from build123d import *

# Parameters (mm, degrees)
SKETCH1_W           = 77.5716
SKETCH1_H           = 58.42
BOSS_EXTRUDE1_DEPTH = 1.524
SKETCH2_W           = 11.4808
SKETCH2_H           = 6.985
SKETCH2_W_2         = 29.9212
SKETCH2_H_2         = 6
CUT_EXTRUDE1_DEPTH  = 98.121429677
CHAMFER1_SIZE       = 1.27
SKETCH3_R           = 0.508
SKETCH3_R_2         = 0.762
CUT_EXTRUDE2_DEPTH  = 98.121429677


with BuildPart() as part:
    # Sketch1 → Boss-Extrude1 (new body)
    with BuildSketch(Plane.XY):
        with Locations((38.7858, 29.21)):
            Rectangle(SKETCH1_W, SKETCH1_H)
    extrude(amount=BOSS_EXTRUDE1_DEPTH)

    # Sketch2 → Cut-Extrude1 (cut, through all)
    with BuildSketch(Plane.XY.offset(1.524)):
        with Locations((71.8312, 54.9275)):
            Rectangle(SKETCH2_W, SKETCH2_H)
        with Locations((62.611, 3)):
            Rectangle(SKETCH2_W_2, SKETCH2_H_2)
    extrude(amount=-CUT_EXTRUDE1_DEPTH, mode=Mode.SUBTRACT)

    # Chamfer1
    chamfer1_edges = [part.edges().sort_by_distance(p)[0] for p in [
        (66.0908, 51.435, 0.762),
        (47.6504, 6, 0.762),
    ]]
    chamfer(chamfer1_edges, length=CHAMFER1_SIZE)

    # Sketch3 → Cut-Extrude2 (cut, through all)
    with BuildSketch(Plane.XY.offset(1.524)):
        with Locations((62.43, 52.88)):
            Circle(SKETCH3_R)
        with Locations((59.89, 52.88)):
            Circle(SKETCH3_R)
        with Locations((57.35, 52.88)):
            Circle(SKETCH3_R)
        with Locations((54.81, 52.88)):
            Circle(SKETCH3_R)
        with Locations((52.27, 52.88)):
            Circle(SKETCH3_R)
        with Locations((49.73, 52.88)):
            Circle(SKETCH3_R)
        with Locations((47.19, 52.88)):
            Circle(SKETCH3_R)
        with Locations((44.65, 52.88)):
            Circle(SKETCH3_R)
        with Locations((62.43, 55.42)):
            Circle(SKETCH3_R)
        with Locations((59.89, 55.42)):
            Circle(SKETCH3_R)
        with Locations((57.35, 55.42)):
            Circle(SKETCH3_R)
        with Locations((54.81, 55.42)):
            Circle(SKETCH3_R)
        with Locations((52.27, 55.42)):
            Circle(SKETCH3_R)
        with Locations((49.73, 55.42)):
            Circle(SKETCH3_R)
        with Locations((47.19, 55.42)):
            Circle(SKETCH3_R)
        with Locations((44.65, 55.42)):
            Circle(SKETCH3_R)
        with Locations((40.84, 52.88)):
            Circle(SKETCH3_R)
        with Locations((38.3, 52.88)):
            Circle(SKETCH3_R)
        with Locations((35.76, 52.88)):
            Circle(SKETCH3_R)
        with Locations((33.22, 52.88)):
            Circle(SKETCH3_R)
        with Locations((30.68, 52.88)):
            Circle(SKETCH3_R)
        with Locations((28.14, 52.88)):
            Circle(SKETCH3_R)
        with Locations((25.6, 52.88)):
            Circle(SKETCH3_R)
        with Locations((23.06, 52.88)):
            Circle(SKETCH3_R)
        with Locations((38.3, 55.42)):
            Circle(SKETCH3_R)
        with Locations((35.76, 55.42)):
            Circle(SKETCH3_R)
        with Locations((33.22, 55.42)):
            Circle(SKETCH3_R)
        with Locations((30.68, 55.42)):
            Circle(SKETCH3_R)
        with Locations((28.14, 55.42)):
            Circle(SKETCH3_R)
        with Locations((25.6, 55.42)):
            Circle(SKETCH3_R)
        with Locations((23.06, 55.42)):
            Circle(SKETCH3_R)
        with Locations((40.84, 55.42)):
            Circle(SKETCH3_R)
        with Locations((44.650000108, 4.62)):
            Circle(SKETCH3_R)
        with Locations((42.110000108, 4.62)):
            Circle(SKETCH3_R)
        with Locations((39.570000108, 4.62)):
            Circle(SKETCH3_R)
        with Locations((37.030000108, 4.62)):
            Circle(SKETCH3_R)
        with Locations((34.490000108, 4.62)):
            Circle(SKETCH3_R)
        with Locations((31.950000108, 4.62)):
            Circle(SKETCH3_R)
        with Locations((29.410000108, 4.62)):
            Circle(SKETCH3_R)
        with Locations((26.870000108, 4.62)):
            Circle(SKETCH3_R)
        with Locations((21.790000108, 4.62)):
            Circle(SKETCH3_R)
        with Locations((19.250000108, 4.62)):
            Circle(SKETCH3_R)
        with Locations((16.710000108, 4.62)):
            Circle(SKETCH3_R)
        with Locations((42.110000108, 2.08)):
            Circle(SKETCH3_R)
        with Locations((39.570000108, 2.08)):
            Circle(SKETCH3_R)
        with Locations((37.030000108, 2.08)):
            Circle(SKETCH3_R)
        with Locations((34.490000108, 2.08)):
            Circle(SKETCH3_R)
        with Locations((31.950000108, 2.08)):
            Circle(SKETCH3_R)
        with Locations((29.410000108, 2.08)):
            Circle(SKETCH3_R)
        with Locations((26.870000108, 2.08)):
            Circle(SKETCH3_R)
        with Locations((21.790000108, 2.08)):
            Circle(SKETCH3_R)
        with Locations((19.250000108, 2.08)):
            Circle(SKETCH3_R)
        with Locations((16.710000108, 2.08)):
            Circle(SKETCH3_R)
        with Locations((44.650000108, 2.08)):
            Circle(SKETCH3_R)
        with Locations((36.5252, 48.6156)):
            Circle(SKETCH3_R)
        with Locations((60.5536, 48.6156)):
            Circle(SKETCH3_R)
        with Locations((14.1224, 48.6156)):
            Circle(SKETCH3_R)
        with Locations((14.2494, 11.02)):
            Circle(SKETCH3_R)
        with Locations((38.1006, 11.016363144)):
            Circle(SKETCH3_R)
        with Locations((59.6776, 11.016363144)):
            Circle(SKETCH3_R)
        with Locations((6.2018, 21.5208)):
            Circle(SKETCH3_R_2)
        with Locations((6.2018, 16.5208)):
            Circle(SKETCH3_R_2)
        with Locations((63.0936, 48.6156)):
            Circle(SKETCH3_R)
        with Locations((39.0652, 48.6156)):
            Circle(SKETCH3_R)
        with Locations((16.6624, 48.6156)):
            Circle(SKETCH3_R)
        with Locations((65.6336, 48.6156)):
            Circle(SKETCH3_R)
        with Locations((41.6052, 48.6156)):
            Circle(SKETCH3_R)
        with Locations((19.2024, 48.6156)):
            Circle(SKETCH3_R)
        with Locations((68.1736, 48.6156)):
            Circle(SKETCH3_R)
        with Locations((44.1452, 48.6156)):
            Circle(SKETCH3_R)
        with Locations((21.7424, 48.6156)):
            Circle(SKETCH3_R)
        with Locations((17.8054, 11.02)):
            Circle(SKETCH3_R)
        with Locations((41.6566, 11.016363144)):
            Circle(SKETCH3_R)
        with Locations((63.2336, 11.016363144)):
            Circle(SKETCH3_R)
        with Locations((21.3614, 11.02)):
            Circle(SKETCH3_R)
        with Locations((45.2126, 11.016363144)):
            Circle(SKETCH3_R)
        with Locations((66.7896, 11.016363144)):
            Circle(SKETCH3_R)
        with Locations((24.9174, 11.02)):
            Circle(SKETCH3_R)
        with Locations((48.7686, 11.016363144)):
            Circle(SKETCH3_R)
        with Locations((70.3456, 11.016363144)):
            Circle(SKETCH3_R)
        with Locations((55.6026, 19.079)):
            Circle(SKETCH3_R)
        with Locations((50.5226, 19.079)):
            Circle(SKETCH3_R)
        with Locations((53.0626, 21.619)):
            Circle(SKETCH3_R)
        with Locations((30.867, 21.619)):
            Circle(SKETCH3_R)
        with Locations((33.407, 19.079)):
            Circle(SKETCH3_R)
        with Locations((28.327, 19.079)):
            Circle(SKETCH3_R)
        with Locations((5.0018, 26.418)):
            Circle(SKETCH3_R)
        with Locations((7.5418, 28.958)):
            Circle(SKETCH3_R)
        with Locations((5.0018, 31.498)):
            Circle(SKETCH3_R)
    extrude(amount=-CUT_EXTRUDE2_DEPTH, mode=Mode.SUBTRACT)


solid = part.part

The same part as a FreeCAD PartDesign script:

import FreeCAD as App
import Part
import Sketcher
Q = App.Units.Quantity


def edges_at(feature, points):
    """Names of the edges that pass closest to the given points."""
    edges = feature.Shape.Edges
    near = lambda p: min(range(len(edges)), key=lambda i: edges[i].distToShape(Part.Vertex(*p))[0])
    return sorted({f"Edge{near(p) + 1}" for p in points})

doc = App.newDocument("Part")
body = doc.addObject("PartDesign::Body", "Body")

sketch1 = doc.addObject("Sketcher::SketchObject", "Sketch")
body.addObject(sketch1)
sketch1.AttachmentSupport = (doc.XY_Plane, [""])
sketch1.MapMode = "FlatFace"
sketch1.addGeometry([
    Part.LineSegment(App.Vector(0, 58.42, 0), App.Vector(0, 0, 0)),
    Part.LineSegment(App.Vector(0, 0, 0), App.Vector(77.5716, 0, 0)),
    Part.LineSegment(App.Vector(77.5716, 0, 0), App.Vector(77.5716, 58.42, 0)),
    Part.LineSegment(App.Vector(77.5716, 58.42, 0), App.Vector(0, 58.42, 0)),
], False)
sketch1.addConstraint([
    Sketcher.Constraint("Coincident", 0, 2, 1, 1),
    Sketcher.Constraint("Coincident", 1, 2, 2, 1),
    Sketcher.Constraint("Coincident", 2, 2, 3, 1),
    Sketcher.Constraint("Coincident", 3, 2, 0, 1),
    Sketcher.Constraint("Vertical", 0),
    Sketcher.Constraint("Horizontal", 1),
    Sketcher.Constraint("Vertical", 2),
    Sketcher.Constraint("Horizontal", 3),
    Sketcher.Constraint("Coincident", 0, 2, -1, 1),
    Sketcher.Constraint("DistanceY", 0, 2, 0, 1, Q("2.3 in")),
    Sketcher.Constraint("DistanceX", 1, 1, 1, 2, Q("3.054 in")),
])
pad1 = doc.addObject("PartDesign::Pad", "Pad")
body.addObject(pad1)
pad1.Profile = sketch1
pad1.Length = Q("0.06 in")

sketch2 = doc.addObject("Sketcher::SketchObject", "Sketch001")
body.addObject(sketch2)
sketch2.AttachmentSupport = (doc.XY_Plane, [""])
sketch2.MapMode = "FlatFace"
sketch2.AttachmentOffset = App.Placement(App.Vector(0, 0, 0.06 * 25.4), App.Rotation())
sketch2.addGeometry([
    Part.LineSegment(App.Vector(66.0908, 58.42, 0), App.Vector(66.0908, 51.435, 0)),
    Part.LineSegment(App.Vector(66.0908, 51.435, 0), App.Vector(77.5716, 51.435, 0)),
    Part.LineSegment(App.Vector(77.5716, 51.435, 0), App.Vector(77.5716, 58.42, 0)),
    Part.LineSegment(App.Vector(77.5716, 58.42, 0), App.Vector(66.0908, 58.42, 0)),
    Part.LineSegment(App.Vector(47.6504, 6, 0), App.Vector(47.6504, 0, 0)),
    Part.LineSegment(App.Vector(47.6504, 0, 0), App.Vector(77.5716, 0, 0)),
    Part.LineSegment(App.Vector(77.5716, 0, 0), App.Vector(77.5716, 6, 0)),
    Part.LineSegment(App.Vector(77.5716, 6, 0), App.Vector(47.6504, 6, 0)),
], False)
sketch2.addConstraint([
    Sketcher.Constraint("Coincident", 0, 2, 1, 1),
    Sketcher.Constraint("Coincident", 1, 2, 2, 1),
    Sketcher.Constraint("Coincident", 2, 2, 3, 1),
    Sketcher.Constraint("Coincident", 3, 2, 0, 1),
    Sketcher.Constraint("Coincident", 4, 2, 5, 1),
    Sketcher.Constraint("Coincident", 5, 2, 6, 1),
    Sketcher.Constraint("Coincident", 6, 2, 7, 1),
    Sketcher.Constraint("Coincident", 7, 2, 4, 1),
    Sketcher.Constraint("Vertical", 0),
    Sketcher.Constraint("Horizontal", 1),
    Sketcher.Constraint("Vertical", 2),
    Sketcher.Constraint("Horizontal", 3),
    Sketcher.Constraint("Vertical", 4),
    Sketcher.Constraint("Horizontal", 5),
    Sketcher.Constraint("Vertical", 6),
    Sketcher.Constraint("Horizontal", 7),
    Sketcher.Constraint("PointOnObject", 4, 2, -1),
    Sketcher.Constraint("Vertical", 2, 2, 5, 2),
    Sketcher.Constraint("DistanceY", -1, 1, 2, 2, Q("2.3 in")),
    Sketcher.Constraint("DistanceX", 1, 1, 1, 2, Q("0.452 in")),
    Sketcher.Constraint("DistanceX", 5, 1, 5, 2, Q("1.178 in")),
    Sketcher.Constraint("DistanceY", 0, 2, 0, 1, Q("0.275 in")),
    Sketcher.Constraint("DistanceX", -1, 1, 0, 2, Q("2.602 in")),
    Sketcher.Constraint("DistanceY", 4, 2, 4, 1, 6.0),
])
pocket1 = doc.addObject("PartDesign::Pocket", "Pocket")
body.addObject(pocket1)
pocket1.Profile = sketch2
pocket1.Type = "ThroughAll"
doc.recompute()

chamfer = doc.addObject("PartDesign::Chamfer", "Chamfer")
body.addObject(chamfer)
chamfer.Base = (pocket1, edges_at(pocket1, [(66.091, 51.435, 0.762), (47.65, 6, 0.762)]))
chamfer.Size = Q("0.05 in")

sketch3 = doc.addObject("Sketcher::SketchObject", "Sketch002")
body.addObject(sketch3)
sketch3.AttachmentSupport = (doc.XY_Plane, [""])
sketch3.MapMode = "FlatFace"
sketch3.AttachmentOffset = App.Placement(App.Vector(0, 0, 0.06 * 25.4), App.Rotation())
sketch3.addGeometry([
    Part.Circle(App.Vector(62.43, 52.88, 0), App.Vector(0, 0, 1), 0.508),
    Part.Circle(App.Vector(59.89, 52.88, 0), App.Vector(0, 0, 1), 0.508),
    Part.Circle(App.Vector(57.35, 52.88, 0), App.Vector(0, 0, 1), 0.508),
    Part.Circle(App.Vector(54.81, 52.88, 0), App.Vector(0, 0, 1), 0.508),
    Part.Circle(App.Vector(52.27, 52.88, 0), App.Vector(0, 0, 1), 0.508),
    Part.Circle(App.Vector(49.73, 52.88, 0), App.Vector(0, 0, 1), 0.508),
    Part.Circle(App.Vector(47.19, 52.88, 0), App.Vector(0, 0, 1), 0.508),
    Part.Circle(App.Vector(44.65, 52.88, 0), App.Vector(0, 0, 1), 0.508),
    Part.Circle(App.Vector(62.43, 55.42, 0), App.Vector(0, 0, 1), 0.508),
    Part.Circle(App.Vector(59.89, 55.42, 0), App.Vector(0, 0, 1), 0.508),
    Part.Circle(App.Vector(57.35, 55.42, 0), App.Vector(0, 0, 1), 0.508),
    Part.Circle(App.Vector(54.81, 55.42, 0), App.Vector(0, 0, 1), 0.508),
    Part.Circle(App.Vector(52.27, 55.42, 0), App.Vector(0, 0, 1), 0.508),
    Part.Circle(App.Vector(49.73, 55.42, 0), App.Vector(0, 0, 1), 0.508),
    Part.Circle(App.Vector(47.19, 55.42, 0), App.Vector(0, 0, 1), 0.508),
    Part.Circle(App.Vector(44.65, 55.42, 0), App.Vector(0, 0, 1), 0.508),
    Part.Circle(App.Vector(40.84, 52.88, 0), App.Vector(0, 0, 1), 0.508),
    Part.Circle(App.Vector(38.3, 52.88, 0), App.Vector(0, 0, 1), 0.508),
    Part.Circle(App.Vector(35.76, 52.88, 0), App.Vector(0, 0, 1), 0.508),
    Part.Circle(App.Vector(33.22, 52.88, 0), App.Vector(0, 0, 1), 0.508),
    Part.Circle(App.Vector(30.68, 52.88, 0), App.Vector(0, 0, 1), 0.508),
    Part.Circle(App.Vector(28.14, 52.88, 0), App.Vector(0, 0, 1), 0.508),
    Part.Circle(App.Vector(25.6, 52.88, 0), App.Vector(0, 0, 1), 0.508),
    Part.Circle(App.Vector(23.06, 52.88, 0), App.Vector(0, 0, 1), 0.508),
    Part.Circle(App.Vector(38.3, 55.42, 0), App.Vector(0, 0, 1), 0.508),
    Part.Circle(App.Vector(35.76, 55.42, 0), App.Vector(0, 0, 1), 0.508),
    Part.Circle(App.Vector(33.22, 55.42, 0), App.Vector(0, 0, 1), 0.508),
    Part.Circle(App.Vector(30.68, 55.42, 0), App.Vector(0, 0, 1), 0.508),
    Part.Circle(App.Vector(28.14, 55.42, 0), App.Vector(0, 0, 1), 0.508),
    Part.Circle(App.Vector(25.6, 55.42, 0), App.Vector(0, 0, 1), 0.508),
    Part.Circle(App.Vector(23.06, 55.42, 0), App.Vector(0, 0, 1), 0.508),
    Part.Circle(App.Vector(40.84, 55.42, 0), App.Vector(0, 0, 1), 0.508),
    Part.Circle(App.Vector(44.65, 4.62, 0), App.Vector(0, 0, 1), 0.508),
    Part.Circle(App.Vector(42.11, 4.62, 0), App.Vector(0, 0, 1), 0.508),
    Part.Circle(App.Vector(39.57, 4.62, 0), App.Vector(0, 0, 1), 0.508),
    Part.Circle(App.Vector(37.03, 4.62, 0), App.Vector(0, 0, 1), 0.508),
    Part.Circle(App.Vector(34.49, 4.62, 0), App.Vector(0, 0, 1), 0.508),
    Part.Circle(App.Vector(31.95, 4.62, 0), App.Vector(0, 0, 1), 0.508),
    Part.Circle(App.Vector(29.41, 4.62, 0), App.Vector(0, 0, 1), 0.508),
    Part.Circle(App.Vector(26.87, 4.62, 0), App.Vector(0, 0, 1), 0.508),
    Part.Circle(App.Vector(21.79, 4.62, 0), App.Vector(0, 0, 1), 0.508),
    Part.Circle(App.Vector(19.25, 4.62, 0), App.Vector(0, 0, 1), 0.508),
    Part.Circle(App.Vector(16.71, 4.62, 0), App.Vector(0, 0, 1), 0.508),
    Part.Circle(App.Vector(42.11, 2.08, 0), App.Vector(0, 0, 1), 0.508),
    Part.Circle(App.Vector(39.57, 2.08, 0), App.Vector(0, 0, 1), 0.508),
    Part.Circle(App.Vector(37.03, 2.08, 0), App.Vector(0, 0, 1), 0.508),
    Part.Circle(App.Vector(34.49, 2.08, 0), App.Vector(0, 0, 1), 0.508),
    Part.Circle(App.Vector(31.95, 2.08, 0), App.Vector(0, 0, 1), 0.508),
    Part.Circle(App.Vector(29.41, 2.08, 0), App.Vector(0, 0, 1), 0.508),
    Part.Circle(App.Vector(26.87, 2.08, 0), App.Vector(0, 0, 1), 0.508),
    Part.Circle(App.Vector(21.79, 2.08, 0), App.Vector(0, 0, 1), 0.508),
    Part.Circle(App.Vector(19.25, 2.08, 0), App.Vector(0, 0, 1), 0.508),
    Part.Circle(App.Vector(16.71, 2.08, 0), App.Vector(0, 0, 1), 0.508),
    Part.Circle(App.Vector(44.65, 2.08, 0), App.Vector(0, 0, 1), 0.508),
    Part.Circle(App.Vector(36.5252, 48.6156, 0), App.Vector(0, 0, 1), 0.508),
    Part.Circle(App.Vector(60.5536, 48.6156, 0), App.Vector(0, 0, 1), 0.508),
    Part.Circle(App.Vector(14.1224, 48.6156, 0), App.Vector(0, 0, 1), 0.508),
    Part.Circle(App.Vector(14.2494, 11.02, 0), App.Vector(0, 0, 1), 0.508),
    Part.Circle(App.Vector(38.1006, 11.016363, 0), App.Vector(0, 0, 1), 0.508),
    Part.Circle(App.Vector(59.6776, 11.016363, 0), App.Vector(0, 0, 1), 0.508),
    Part.Circle(App.Vector(6.2018, 21.5208, 0), App.Vector(0, 0, 1), 0.762),
    Part.Circle(App.Vector(6.2018, 16.5208, 0), App.Vector(0, 0, 1), 0.762),
    Part.Circle(App.Vector(63.0936, 48.6156, 0), App.Vector(0, 0, 1), 0.508),
    Part.Circle(App.Vector(39.0652, 48.6156, 0), App.Vector(0, 0, 1), 0.508),
    Part.Circle(App.Vector(16.6624, 48.6156, 0), App.Vector(0, 0, 1), 0.508),
    Part.Circle(App.Vector(65.6336, 48.6156, 0), App.Vector(0, 0, 1), 0.508),
    Part.Circle(App.Vector(41.6052, 48.6156, 0), App.Vector(0, 0, 1), 0.508),
    Part.Circle(App.Vector(19.2024, 48.6156, 0), App.Vector(0, 0, 1), 0.508),
    Part.Circle(App.Vector(68.1736, 48.6156, 0), App.Vector(0, 0, 1), 0.508),
    Part.Circle(App.Vector(44.1452, 48.6156, 0), App.Vector(0, 0, 1), 0.508),
    Part.Circle(App.Vector(21.7424, 48.6156, 0), App.Vector(0, 0, 1), 0.508),
    Part.Circle(App.Vector(17.8054, 11.02, 0), App.Vector(0, 0, 1), 0.508),
    Part.Circle(App.Vector(41.6566, 11.016363, 0), App.Vector(0, 0, 1), 0.508),
    Part.Circle(App.Vector(63.2336, 11.016363, 0), App.Vector(0, 0, 1), 0.508),
    Part.Circle(App.Vector(21.3614, 11.02, 0), App.Vector(0, 0, 1), 0.508),
    Part.Circle(App.Vector(45.2126, 11.016363, 0), App.Vector(0, 0, 1), 0.508),
    Part.Circle(App.Vector(66.7896, 11.016363, 0), App.Vector(0, 0, 1), 0.508),
    Part.Circle(App.Vector(24.9174, 11.02, 0), App.Vector(0, 0, 1), 0.508),
    Part.Circle(App.Vector(48.7686, 11.016363, 0), App.Vector(0, 0, 1), 0.508),
    Part.Circle(App.Vector(70.3456, 11.016363, 0), App.Vector(0, 0, 1), 0.508),
    Part.Circle(App.Vector(55.6026, 19.079, 0), App.Vector(0, 0, 1), 0.508),
    Part.Circle(App.Vector(50.5226, 19.079, 0), App.Vector(0, 0, 1), 0.508),
    Part.Circle(App.Vector(53.0626, 21.619, 0), App.Vector(0, 0, 1), 0.508),
    Part.Circle(App.Vector(30.867, 21.619, 0), App.Vector(0, 0, 1), 0.508),
    Part.Circle(App.Vector(33.407, 19.079, 0), App.Vector(0, 0, 1), 0.508),
    Part.Circle(App.Vector(28.327, 19.079, 0), App.Vector(0, 0, 1), 0.508),
    Part.Circle(App.Vector(5.0018, 26.418, 0), App.Vector(0, 0, 1), 0.508),
    Part.Circle(App.Vector(7.5418, 28.958, 0), App.Vector(0, 0, 1), 0.508),
    Part.Circle(App.Vector(5.0018, 31.498, 0), App.Vector(0, 0, 1), 0.508),
], False)
sketch3.addConstraint([
    Sketcher.Constraint("Equal", 0, 1),
    Sketcher.Constraint("Equal", 1, 2),
    Sketcher.Constraint("Equal", 2, 3),
    Sketcher.Constraint("Equal", 3, 4),
    Sketcher.Constraint("Equal", 4, 5),
    Sketcher.Constraint("Equal", 5, 6),
    Sketcher.Constraint("Equal", 6, 7),
    Sketcher.Constraint("Equal", 7, 8),
    Sketcher.Constraint("Equal", 8, 9),
    Sketcher.Constraint("Equal", 9, 10),
    Sketcher.Constraint("Equal", 10, 11),
    Sketcher.Constraint("Equal", 11, 12),
    Sketcher.Constraint("Equal", 12, 13),
    Sketcher.Constraint("Equal", 13, 14),
    Sketcher.Constraint("Equal", 14, 15),
    Sketcher.Constraint("Equal", 15, 16),
    Sketcher.Constraint("Equal", 16, 17),
    Sketcher.Constraint("Equal", 17, 18),
    Sketcher.Constraint("Equal", 18, 19),
    Sketcher.Constraint("Equal", 19, 20),
    Sketcher.Constraint("Equal", 20, 21),
    Sketcher.Constraint("Equal", 21, 22),
    Sketcher.Constraint("Equal", 22, 23),
    Sketcher.Constraint("Equal", 23, 24),
    Sketcher.Constraint("Equal", 24, 25),
    Sketcher.Constraint("Equal", 25, 26),
    Sketcher.Constraint("Equal", 26, 27),
    Sketcher.Constraint("Equal", 27, 28),
    Sketcher.Constraint("Equal", 28, 29),
    Sketcher.Constraint("Equal", 29, 30),
    Sketcher.Constraint("Equal", 30, 31),
    Sketcher.Constraint("Equal", 31, 32),
    Sketcher.Constraint("Equal", 32, 33),
    Sketcher.Constraint("Equal", 33, 34),
    Sketcher.Constraint("Equal", 34, 35),
    Sketcher.Constraint("Equal", 35, 36),
    Sketcher.Constraint("Equal", 36, 37),
    Sketcher.Constraint("Equal", 37, 38),
    Sketcher.Constraint("Equal", 38, 39),
    Sketcher.Constraint("Equal", 39, 40),
    Sketcher.Constraint("Equal", 40, 41),
    Sketcher.Constraint("Equal", 41, 42),
    Sketcher.Constraint("Equal", 42, 43),
    Sketcher.Constraint("Equal", 43, 44),
    Sketcher.Constraint("Equal", 44, 45),
    Sketcher.Constraint("Equal", 45, 46),
    Sketcher.Constraint("Equal", 46, 47),
    Sketcher.Constraint("Equal", 47, 48),
    Sketcher.Constraint("Equal", 48, 49),
    Sketcher.Constraint("Equal", 49, 50),
    Sketcher.Constraint("Equal", 50, 51),
    Sketcher.Constraint("Equal", 51, 52),
    Sketcher.Constraint("Equal", 52, 53),
    Sketcher.Constraint("Equal", 53, 54),
    Sketcher.Constraint("Equal", 54, 55),
    Sketcher.Constraint("Equal", 55, 56),
    Sketcher.Constraint("Equal", 56, 57),
    Sketcher.Constraint("Equal", 57, 58),
    Sketcher.Constraint("Equal", 58, 59),
    Sketcher.Constraint("Equal", 60, 61),
    Sketcher.Constraint("Equal", 59, 62),
    Sketcher.Constraint("Equal", 62, 63),
    Sketcher.Constraint("Equal", 63, 64),
    Sketcher.Constraint("Equal", 64, 65),
    Sketcher.Constraint("Equal", 65, 66),
    Sketcher.Constraint("Equal", 66, 67),
    Sketcher.Constraint("Equal", 67, 68),
    Sketcher.Constraint("Equal", 68, 69),
    Sketcher.Constraint("Equal", 69, 70),
    Sketcher.Constraint("Equal", 70, 71),
    Sketcher.Constraint("Equal", 71, 72),
    Sketcher.Constraint("Equal", 72, 73),
    Sketcher.Constraint("Equal", 73, 74),
    Sketcher.Constraint("Equal", 74, 75),
    Sketcher.Constraint("Equal", 75, 76),
    Sketcher.Constraint("Equal", 76, 77),
    Sketcher.Constraint("Equal", 77, 78),
    Sketcher.Constraint("Equal", 78, 79),
    Sketcher.Constraint("Equal", 79, 80),
    Sketcher.Constraint("Equal", 80, 81),
    Sketcher.Constraint("Equal", 81, 82),
    Sketcher.Constraint("Equal", 82, 83),
    Sketcher.Constraint("Equal", 83, 84),
    Sketcher.Constraint("Equal", 84, 85),
    Sketcher.Constraint("Equal", 85, 86),
    Sketcher.Constraint("Equal", 86, 87),
    Sketcher.Constraint("Equal", 87, 88),
    Sketcher.Constraint("Horizontal", 0, 3, 1, 3),
    Sketcher.Constraint("Horizontal", 1, 3, 2, 3),
    Sketcher.Constraint("Horizontal", 2, 3, 3, 3),
    Sketcher.Constraint("Horizontal", 3, 3, 4, 3),
    Sketcher.Constraint("Horizontal", 4, 3, 5, 3),
    Sketcher.Constraint("Horizontal", 5, 3, 6, 3),
    Sketcher.Constraint("Horizontal", 6, 3, 7, 3),
    Sketcher.Constraint("Horizontal", 8, 3, 9, 3),
    Sketcher.Constraint("Horizontal", 9, 3, 10, 3),
    Sketcher.Constraint("Horizontal", 10, 3, 11, 3),
    Sketcher.Constraint("Horizontal", 11, 3, 12, 3),
    Sketcher.Constraint("Horizontal", 12, 3, 13, 3),
    Sketcher.Constraint("Horizontal", 13, 3, 14, 3),
    Sketcher.Constraint("Horizontal", 14, 3, 15, 3),
    Sketcher.Constraint("Horizontal", 7, 3, 16, 3),
    Sketcher.Constraint("Horizontal", 16, 3, 17, 3),
    Sketcher.Constraint("Horizontal", 17, 3, 18, 3),
    Sketcher.Constraint("Horizontal", 18, 3, 19, 3),
    Sketcher.Constraint("Horizontal", 19, 3, 20, 3),
    Sketcher.Constraint("Horizontal", 20, 3, 21, 3),
    Sketcher.Constraint("Horizontal", 21, 3, 22, 3),
    Sketcher.Constraint("Horizontal", 22, 3, 23, 3),
    Sketcher.Constraint("Horizontal", 15, 3, 24, 3),
    Sketcher.Constraint("Horizontal", 24, 3, 25, 3),
    Sketcher.Constraint("Horizontal", 25, 3, 26, 3),
    Sketcher.Constraint("Horizontal", 26, 3, 27, 3),
    Sketcher.Constraint("Horizontal", 27, 3, 28, 3),
    Sketcher.Constraint("Horizontal", 28, 3, 29, 3),
    Sketcher.Constraint("Horizontal", 29, 3, 30, 3),
    Sketcher.Constraint("Horizontal", 30, 3, 31, 3),
    Sketcher.Constraint("Horizontal", 32, 3, 33, 3),
    Sketcher.Constraint("Horizontal", 33, 3, 34, 3),
    Sketcher.Constraint("Horizontal", 34, 3, 35, 3),
    Sketcher.Constraint("Horizontal", 35, 3, 36, 3),
    Sketcher.Constraint("Horizontal", 36, 3, 37, 3),
    Sketcher.Constraint("Horizontal", 37, 3, 38, 3),
    Sketcher.Constraint("Horizontal", 38, 3, 39, 3),
    Sketcher.Constraint("Horizontal", 39, 3, 40, 3),
    Sketcher.Constraint("Horizontal", 40, 3, 41, 3),
    Sketcher.Constraint("Horizontal", 41, 3, 42, 3),
    Sketcher.Constraint("Horizontal", 43, 3, 44, 3),
    Sketcher.Constraint("Horizontal", 44, 3, 45, 3),
    Sketcher.Constraint("Horizontal", 45, 3, 46, 3),
    Sketcher.Constraint("Horizontal", 46, 3, 47, 3),
    Sketcher.Constraint("Horizontal", 47, 3, 48, 3),
    Sketcher.Constraint("Horizontal", 48, 3, 49, 3),
    Sketcher.Constraint("Horizontal", 49, 3, 50, 3),
    Sketcher.Constraint("Horizontal", 50, 3, 51, 3),
    Sketcher.Constraint("Horizontal", 51, 3, 52, 3),
    Sketcher.Constraint("Horizontal", 52, 3, 53, 3),
    Sketcher.Constraint("Horizontal", 54, 3, 55, 3),
    Sketcher.Constraint("Horizontal", 55, 3, 56, 3),
    Sketcher.Constraint("Horizontal", 58, 3, 59, 3),
    Sketcher.Constraint("Horizontal", 56, 3, 62, 3),
    Sketcher.Constraint("Horizontal", 62, 3, 63, 3),
    Sketcher.Constraint("Horizontal", 63, 3, 64, 3),
    Sketcher.Constraint("Horizontal", 64, 3, 65, 3),
    Sketcher.Constraint("Horizontal", 65, 3, 66, 3),
    Sketcher.Constraint("Horizontal", 66, 3, 67, 3),
    Sketcher.Constraint("Horizontal", 67, 3, 68, 3),
    Sketcher.Constraint("Horizontal", 68, 3, 69, 3),
    Sketcher.Constraint("Horizontal", 69, 3, 70, 3),
    Sketcher.Constraint("Horizontal", 57, 3, 71, 3),
    Sketcher.Constraint("Horizontal", 59, 3, 72, 3),
    Sketcher.Constraint("Horizontal", 72, 3, 73, 3),
    Sketcher.Constraint("Horizontal", 71, 3, 74, 3),
    Sketcher.Constraint("Horizontal", 73, 3, 75, 3),
    Sketcher.Constraint("Horizontal", 75, 3, 76, 3),
    Sketcher.Constraint("Horizontal", 74, 3, 77, 3),
    Sketcher.Constraint("Horizontal", 76, 3, 78, 3),
    Sketcher.Constraint("Horizontal", 78, 3, 79, 3),
    Sketcher.Constraint("Horizontal", 80, 3, 81, 3),
    Sketcher.Constraint("Horizontal", 82, 3, 83, 3),
    Sketcher.Constraint("Horizontal", 81, 3, 84, 3),
    Sketcher.Constraint("Horizontal", 84, 3, 85, 3),
    Sketcher.Constraint("Vertical", 0, 3, 8, 3),
    Sketcher.Constraint("Vertical", 1, 3, 9, 3),
    Sketcher.Constraint("Vertical", 2, 3, 10, 3),
    Sketcher.Constraint("Vertical", 3, 3, 11, 3),
    Sketcher.Constraint("Vertical", 4, 3, 12, 3),
    Sketcher.Constraint("Vertical", 5, 3, 13, 3),
    Sketcher.Constraint("Vertical", 6, 3, 14, 3),
    Sketcher.Constraint("Vertical", 7, 3, 15, 3),
    Sketcher.Constraint("Vertical", 17, 3, 24, 3),
    Sketcher.Constraint("Vertical", 18, 3, 25, 3),
    Sketcher.Constraint("Vertical", 19, 3, 26, 3),
    Sketcher.Constraint("Vertical", 20, 3, 27, 3),
    Sketcher.Constraint("Vertical", 21, 3, 28, 3),
    Sketcher.Constraint("Vertical", 22, 3, 29, 3),
    Sketcher.Constraint("Vertical", 23, 3, 30, 3),
    Sketcher.Constraint("Vertical", 16, 3, 31, 3),
    Sketcher.Constraint("Vertical", 15, 3, 32, 3),
    Sketcher.Constraint("Vertical", 33, 3, 43, 3),
    Sketcher.Constraint("Vertical", 34, 3, 44, 3),
    Sketcher.Constraint("Vertical", 35, 3, 45, 3),
    Sketcher.Constraint("Vertical", 36, 3, 46, 3),
    Sketcher.Constraint("Vertical", 37, 3, 47, 3),
    Sketcher.Constraint("Vertical", 38, 3, 48, 3),
    Sketcher.Constraint("Vertical", 39, 3, 49, 3),
    Sketcher.Constraint("Vertical", 40, 3, 50, 3),
    Sketcher.Constraint("Vertical", 41, 3, 51, 3),
    Sketcher.Constraint("Vertical", 42, 3, 52, 3),
    Sketcher.Constraint("Vertical", 32, 3, 53, 3),
    Sketcher.Constraint("Vertical", 60, 3, 61, 3),
    Sketcher.Constraint("Vertical", 86, 3, 88, 3),
    Sketcher.Constraint("Diameter", 0, Q("0.04 in")),
    Sketcher.Constraint("Diameter", 60, Q("0.06 in")),
    Sketcher.Constraint("DistanceX", -1, 1, 54, 3, Q("1.438 in")),
    Sketcher.Constraint("DistanceY", -1, 1, 54, 3, Q("1.914 in")),
    Sketcher.Constraint("DistanceX", -1, 1, 55, 3, Q("2.384 in")),
    Sketcher.Constraint("DistanceX", -1, 1, 56, 3, Q("0.556 in")),
    Sketcher.Constraint("DistanceX", -1, 1, 57, 3, Q("0.561 in")),
    Sketcher.Constraint("DistanceX", -1, 1, 62, 3, Q("2.484 in")),
    Sketcher.Constraint("DistanceX", -1, 1, 63, 3, Q("1.538 in")),
    Sketcher.Constraint("DistanceX", -1, 1, 64, 3, Q("0.656 in")),
    Sketcher.Constraint("DistanceX", -1, 1, 65, 3, Q("2.584 in")),
    Sketcher.Constraint("DistanceX", -1, 1, 66, 3, Q("1.638 in")),
    Sketcher.Constraint("DistanceX", -1, 1, 67, 3, Q("0.756 in")),
    Sketcher.Constraint("DistanceX", -1, 1, 68, 3, Q("2.684 in")),
    Sketcher.Constraint("DistanceX", -1, 1, 69, 3, Q("1.738 in")),
    Sketcher.Constraint("DistanceX", -1, 1, 70, 3, Q("0.856 in")),
    Sketcher.Constraint("DistanceX", -1, 1, 71, 3, Q("0.701 in")),
    Sketcher.Constraint("DistanceX", -1, 1, 74, 3, Q("0.841 in")),
    Sketcher.Constraint("DistanceX", -1, 1, 77, 3, Q("0.981 in")),
    Sketcher.Constraint("DistanceX", -1, 1, 0, 3, 62.43),
    Sketcher.Constraint("DistanceY", -1, 1, 0, 3, 52.88),
    Sketcher.Constraint("DistanceX", -1, 1, 1, 3, 59.89),
    Sketcher.Constraint("DistanceX", -1, 1, 2, 3, 57.35),
    Sketcher.Constraint("DistanceX", -1, 1, 3, 3, 54.81),
    Sketcher.Constraint("DistanceX", -1, 1, 4, 3, 52.27),
    Sketcher.Constraint("DistanceX", -1, 1, 5, 3, 49.73),
    Sketcher.Constraint("DistanceX", -1, 1, 6, 3, 47.19),
    Sketcher.Constraint("DistanceX", -1, 1, 7, 3, 44.65),
    Sketcher.Constraint("DistanceY", -1, 1, 8, 3, 55.42),
    Sketcher.Constraint("DistanceX", -1, 1, 16, 3, 40.84),
    Sketcher.Constraint("DistanceX", -1, 1, 17, 3, 38.3),
    Sketcher.Constraint("DistanceX", -1, 1, 18, 3, 35.76),
    Sketcher.Constraint("DistanceX", -1, 1, 19, 3, 33.22),
    Sketcher.Constraint("DistanceX", -1, 1, 20, 3, 30.68),
    Sketcher.Constraint("DistanceX", -1, 1, 21, 3, 28.14),
    Sketcher.Constraint("DistanceX", -1, 1, 22, 3, 25.6),
    Sketcher.Constraint("DistanceX", -1, 1, 23, 3, 23.06),
    Sketcher.Constraint("DistanceY", -1, 1, 32, 3, 4.62),
    Sketcher.Constraint("DistanceX", -1, 1, 33, 3, 42.11),
    Sketcher.Constraint("DistanceX", -1, 1, 34, 3, 39.57),
    Sketcher.Constraint("DistanceX", -1, 1, 35, 3, 37.03),
    Sketcher.Constraint("DistanceX", -1, 1, 36, 3, 34.49),
    Sketcher.Constraint("DistanceX", -1, 1, 37, 3, 31.95),
    Sketcher.Constraint("DistanceX", -1, 1, 38, 3, 29.41),
    Sketcher.Constraint("DistanceX", -1, 1, 39, 3, 26.87),
    Sketcher.Constraint("DistanceX", -1, 1, 40, 3, 21.79),
    Sketcher.Constraint("DistanceX", -1, 1, 41, 3, 19.25),
    Sketcher.Constraint("DistanceX", -1, 1, 42, 3, 16.71),
    Sketcher.Constraint("DistanceY", -1, 1, 43, 3, 2.08),
    Sketcher.Constraint("DistanceY", -1, 1, 57, 3, 11.02),
    Sketcher.Constraint("DistanceX", -1, 1, 58, 3, 38.1006),
    Sketcher.Constraint("DistanceX", -1, 1, 59, 3, 59.6776),
    Sketcher.Constraint("DistanceX", -1, 1, 60, 3, 6.2018),
    Sketcher.Constraint("DistanceY", -1, 1, 60, 3, 21.5208),
    Sketcher.Constraint("DistanceY", -1, 1, 61, 3, 16.5208),
    Sketcher.Constraint("DistanceX", -1, 1, 72, 3, 41.6566),
    Sketcher.Constraint("DistanceX", -1, 1, 73, 3, 63.2336),
    Sketcher.Constraint("DistanceX", -1, 1, 75, 3, 45.2126),
    Sketcher.Constraint("DistanceX", -1, 1, 76, 3, 66.7896),
    Sketcher.Constraint("DistanceX", -1, 1, 78, 3, 48.7686),
    Sketcher.Constraint("DistanceX", -1, 1, 79, 3, 70.3456),
    Sketcher.Constraint("DistanceX", -1, 1, 80, 3, 55.6026),
    Sketcher.Constraint("DistanceY", -1, 1, 80, 3, 19.079),
    Sketcher.Constraint("DistanceX", -1, 1, 81, 3, 50.5226),
    Sketcher.Constraint("DistanceX", -1, 1, 82, 3, 53.0626),
    Sketcher.Constraint("DistanceY", -1, 1, 82, 3, 21.619),
    Sketcher.Constraint("DistanceX", -1, 1, 83, 3, 30.867),
    Sketcher.Constraint("DistanceX", -1, 1, 84, 3, 33.407),
    Sketcher.Constraint("DistanceX", -1, 1, 85, 3, 28.327),
    Sketcher.Constraint("DistanceX", -1, 1, 86, 3, 5.0018),
    Sketcher.Constraint("DistanceY", -1, 1, 86, 3, 26.418),
    Sketcher.Constraint("DistanceX", -1, 1, 87, 3, 7.5418),
    Sketcher.Constraint("DistanceY", -1, 1, 87, 3, 28.958),
    Sketcher.Constraint("DistanceY", -1, 1, 88, 3, 31.498),
    Sketcher.Constraint("DistanceY", -1, 1, 58, 3, 11.016363),
])
pocket2 = doc.addObject("PartDesign::Pocket", "Pocket001")
body.addObject(pocket2)
pocket2.Profile = sketch3
pocket2.Type = "ThroughAll"

doc.recompute()
